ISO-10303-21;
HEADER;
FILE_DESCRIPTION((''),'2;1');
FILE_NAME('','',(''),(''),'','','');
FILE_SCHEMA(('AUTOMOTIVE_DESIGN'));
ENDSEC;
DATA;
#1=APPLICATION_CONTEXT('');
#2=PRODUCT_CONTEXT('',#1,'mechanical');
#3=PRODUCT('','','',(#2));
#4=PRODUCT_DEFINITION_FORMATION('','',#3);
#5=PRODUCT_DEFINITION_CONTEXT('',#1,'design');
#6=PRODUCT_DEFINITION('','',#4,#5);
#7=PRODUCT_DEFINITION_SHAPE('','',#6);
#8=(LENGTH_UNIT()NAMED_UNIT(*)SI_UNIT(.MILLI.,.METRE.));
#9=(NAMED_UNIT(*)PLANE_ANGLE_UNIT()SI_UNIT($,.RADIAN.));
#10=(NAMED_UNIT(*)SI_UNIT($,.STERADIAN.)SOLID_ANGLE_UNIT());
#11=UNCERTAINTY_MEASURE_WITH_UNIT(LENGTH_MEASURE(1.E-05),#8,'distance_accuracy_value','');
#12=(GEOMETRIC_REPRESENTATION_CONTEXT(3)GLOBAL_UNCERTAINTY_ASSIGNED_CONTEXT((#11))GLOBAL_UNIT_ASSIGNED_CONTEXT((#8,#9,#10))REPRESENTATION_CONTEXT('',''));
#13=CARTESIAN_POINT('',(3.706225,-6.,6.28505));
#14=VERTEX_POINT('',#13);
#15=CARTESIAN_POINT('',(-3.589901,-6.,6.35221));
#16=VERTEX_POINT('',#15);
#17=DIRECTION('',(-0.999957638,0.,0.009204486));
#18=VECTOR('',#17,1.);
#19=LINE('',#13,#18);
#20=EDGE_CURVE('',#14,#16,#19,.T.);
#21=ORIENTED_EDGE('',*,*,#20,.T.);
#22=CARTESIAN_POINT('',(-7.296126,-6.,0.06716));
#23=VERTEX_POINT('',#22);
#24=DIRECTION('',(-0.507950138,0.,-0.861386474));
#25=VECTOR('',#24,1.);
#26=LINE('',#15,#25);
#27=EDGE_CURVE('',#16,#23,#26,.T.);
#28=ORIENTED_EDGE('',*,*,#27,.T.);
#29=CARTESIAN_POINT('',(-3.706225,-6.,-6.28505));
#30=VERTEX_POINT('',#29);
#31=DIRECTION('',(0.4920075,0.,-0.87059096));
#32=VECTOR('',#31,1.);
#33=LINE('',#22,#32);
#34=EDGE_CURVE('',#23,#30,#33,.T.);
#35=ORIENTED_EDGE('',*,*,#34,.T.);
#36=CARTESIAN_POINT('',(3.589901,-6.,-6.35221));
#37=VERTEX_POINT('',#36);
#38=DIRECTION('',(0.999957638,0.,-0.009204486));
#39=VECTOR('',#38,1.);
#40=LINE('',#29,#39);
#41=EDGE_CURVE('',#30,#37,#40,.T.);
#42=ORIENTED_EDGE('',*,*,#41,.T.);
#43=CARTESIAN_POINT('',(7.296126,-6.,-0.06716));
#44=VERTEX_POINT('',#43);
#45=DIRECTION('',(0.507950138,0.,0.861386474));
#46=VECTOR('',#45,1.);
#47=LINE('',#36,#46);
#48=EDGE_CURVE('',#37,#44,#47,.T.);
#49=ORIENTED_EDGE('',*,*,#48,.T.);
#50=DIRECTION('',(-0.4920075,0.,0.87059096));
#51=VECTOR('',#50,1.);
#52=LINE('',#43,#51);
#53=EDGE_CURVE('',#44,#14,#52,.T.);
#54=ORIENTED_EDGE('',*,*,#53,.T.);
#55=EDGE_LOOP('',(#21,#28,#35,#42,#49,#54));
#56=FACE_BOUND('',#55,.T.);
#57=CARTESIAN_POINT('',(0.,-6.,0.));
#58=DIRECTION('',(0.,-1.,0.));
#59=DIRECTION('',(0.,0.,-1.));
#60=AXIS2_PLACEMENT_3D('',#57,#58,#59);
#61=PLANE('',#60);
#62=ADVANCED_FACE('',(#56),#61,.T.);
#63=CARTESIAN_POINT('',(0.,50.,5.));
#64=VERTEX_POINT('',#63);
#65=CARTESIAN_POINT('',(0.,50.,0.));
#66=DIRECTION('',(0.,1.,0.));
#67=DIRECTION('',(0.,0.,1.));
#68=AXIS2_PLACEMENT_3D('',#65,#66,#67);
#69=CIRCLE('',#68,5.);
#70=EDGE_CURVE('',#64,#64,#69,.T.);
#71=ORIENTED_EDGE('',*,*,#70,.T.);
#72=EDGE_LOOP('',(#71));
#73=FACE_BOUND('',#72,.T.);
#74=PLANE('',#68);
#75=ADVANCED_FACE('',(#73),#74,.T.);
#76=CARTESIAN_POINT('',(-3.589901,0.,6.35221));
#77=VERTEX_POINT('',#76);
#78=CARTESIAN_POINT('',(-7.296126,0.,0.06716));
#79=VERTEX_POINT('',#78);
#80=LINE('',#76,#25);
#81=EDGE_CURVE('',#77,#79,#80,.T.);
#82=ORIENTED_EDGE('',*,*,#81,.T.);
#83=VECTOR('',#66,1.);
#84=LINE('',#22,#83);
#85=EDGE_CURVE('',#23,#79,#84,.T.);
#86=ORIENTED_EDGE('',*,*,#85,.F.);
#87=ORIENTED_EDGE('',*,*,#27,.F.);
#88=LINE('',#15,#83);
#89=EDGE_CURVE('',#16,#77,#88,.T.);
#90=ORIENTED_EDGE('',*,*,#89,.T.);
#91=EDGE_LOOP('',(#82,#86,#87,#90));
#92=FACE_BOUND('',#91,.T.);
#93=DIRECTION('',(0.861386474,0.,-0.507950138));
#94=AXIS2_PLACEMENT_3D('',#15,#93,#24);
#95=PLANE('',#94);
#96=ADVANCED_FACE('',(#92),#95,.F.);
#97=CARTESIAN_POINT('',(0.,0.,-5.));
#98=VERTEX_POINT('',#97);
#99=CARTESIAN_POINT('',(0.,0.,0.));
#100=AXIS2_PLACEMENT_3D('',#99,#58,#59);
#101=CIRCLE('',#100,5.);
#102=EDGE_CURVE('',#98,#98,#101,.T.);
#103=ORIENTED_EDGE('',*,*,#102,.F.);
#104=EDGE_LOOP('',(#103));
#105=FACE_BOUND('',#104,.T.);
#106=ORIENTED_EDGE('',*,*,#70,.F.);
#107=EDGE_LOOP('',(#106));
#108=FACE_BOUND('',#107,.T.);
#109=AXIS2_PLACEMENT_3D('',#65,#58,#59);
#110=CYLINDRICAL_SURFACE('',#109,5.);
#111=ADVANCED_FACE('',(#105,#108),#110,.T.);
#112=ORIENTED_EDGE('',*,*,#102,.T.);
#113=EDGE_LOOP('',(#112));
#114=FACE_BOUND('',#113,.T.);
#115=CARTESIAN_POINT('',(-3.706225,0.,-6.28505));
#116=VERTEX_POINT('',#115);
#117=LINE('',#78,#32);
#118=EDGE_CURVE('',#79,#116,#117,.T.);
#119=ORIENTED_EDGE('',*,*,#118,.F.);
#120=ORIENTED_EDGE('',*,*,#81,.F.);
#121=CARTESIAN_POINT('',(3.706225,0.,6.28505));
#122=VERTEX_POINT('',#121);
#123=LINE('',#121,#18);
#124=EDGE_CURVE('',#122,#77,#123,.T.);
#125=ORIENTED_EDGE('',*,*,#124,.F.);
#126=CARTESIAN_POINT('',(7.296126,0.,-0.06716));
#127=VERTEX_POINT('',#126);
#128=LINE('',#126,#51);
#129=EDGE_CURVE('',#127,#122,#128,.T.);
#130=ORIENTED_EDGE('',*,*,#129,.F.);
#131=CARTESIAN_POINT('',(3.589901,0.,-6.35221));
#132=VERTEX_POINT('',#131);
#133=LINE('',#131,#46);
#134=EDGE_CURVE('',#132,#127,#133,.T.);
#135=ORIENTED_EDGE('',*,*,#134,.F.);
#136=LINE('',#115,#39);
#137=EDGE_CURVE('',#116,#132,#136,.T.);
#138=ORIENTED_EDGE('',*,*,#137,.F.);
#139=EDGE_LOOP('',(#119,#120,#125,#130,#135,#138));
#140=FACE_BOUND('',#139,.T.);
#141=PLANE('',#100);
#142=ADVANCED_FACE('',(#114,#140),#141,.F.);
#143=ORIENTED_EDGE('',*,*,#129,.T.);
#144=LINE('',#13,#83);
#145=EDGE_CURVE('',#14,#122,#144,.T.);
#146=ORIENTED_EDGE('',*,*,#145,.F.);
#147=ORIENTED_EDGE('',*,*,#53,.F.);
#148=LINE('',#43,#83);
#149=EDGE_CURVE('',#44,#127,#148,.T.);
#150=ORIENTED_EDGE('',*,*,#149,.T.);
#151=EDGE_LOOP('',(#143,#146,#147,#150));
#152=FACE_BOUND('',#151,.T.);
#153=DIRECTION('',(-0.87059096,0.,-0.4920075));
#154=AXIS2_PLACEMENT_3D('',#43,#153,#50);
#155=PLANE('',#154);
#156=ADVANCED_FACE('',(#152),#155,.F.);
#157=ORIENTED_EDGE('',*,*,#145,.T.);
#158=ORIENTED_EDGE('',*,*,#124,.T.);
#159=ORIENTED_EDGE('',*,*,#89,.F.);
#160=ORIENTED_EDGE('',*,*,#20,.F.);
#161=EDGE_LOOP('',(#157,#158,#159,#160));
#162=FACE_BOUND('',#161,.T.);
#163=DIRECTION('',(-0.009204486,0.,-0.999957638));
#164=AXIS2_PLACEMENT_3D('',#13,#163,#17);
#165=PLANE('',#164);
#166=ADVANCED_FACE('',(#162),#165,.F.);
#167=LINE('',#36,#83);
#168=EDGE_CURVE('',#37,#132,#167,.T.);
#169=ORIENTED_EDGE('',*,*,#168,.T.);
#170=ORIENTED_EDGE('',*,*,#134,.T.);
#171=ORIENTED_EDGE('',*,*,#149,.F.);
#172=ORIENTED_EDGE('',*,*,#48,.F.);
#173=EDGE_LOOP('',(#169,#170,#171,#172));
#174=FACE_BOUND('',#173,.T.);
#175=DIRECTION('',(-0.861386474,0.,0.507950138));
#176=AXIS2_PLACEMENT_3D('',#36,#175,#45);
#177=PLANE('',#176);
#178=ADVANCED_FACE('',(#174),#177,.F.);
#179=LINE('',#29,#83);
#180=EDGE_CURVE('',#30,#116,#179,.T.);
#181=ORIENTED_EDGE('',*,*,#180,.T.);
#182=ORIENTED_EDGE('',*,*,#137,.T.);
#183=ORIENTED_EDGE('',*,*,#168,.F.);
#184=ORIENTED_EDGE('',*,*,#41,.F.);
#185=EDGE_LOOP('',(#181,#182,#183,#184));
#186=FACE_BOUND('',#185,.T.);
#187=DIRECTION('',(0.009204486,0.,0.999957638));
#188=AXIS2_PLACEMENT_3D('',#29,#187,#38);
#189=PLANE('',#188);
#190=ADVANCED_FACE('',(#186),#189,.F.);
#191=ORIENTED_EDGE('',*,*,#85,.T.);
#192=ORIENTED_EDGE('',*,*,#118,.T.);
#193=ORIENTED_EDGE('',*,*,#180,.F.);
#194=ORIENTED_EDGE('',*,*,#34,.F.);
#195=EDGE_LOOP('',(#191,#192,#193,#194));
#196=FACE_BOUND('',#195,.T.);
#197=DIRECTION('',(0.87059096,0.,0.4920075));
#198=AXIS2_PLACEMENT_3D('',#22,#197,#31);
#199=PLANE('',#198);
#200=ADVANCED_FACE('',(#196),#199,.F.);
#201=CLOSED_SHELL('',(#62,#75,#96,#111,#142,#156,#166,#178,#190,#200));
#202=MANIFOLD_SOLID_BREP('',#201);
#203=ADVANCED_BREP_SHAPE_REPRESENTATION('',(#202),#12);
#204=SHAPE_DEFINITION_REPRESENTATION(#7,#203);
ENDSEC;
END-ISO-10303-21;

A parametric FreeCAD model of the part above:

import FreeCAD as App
import Part
import Sketcher

V = App.Vector
Q = App.Units.Quantity

doc = App.newDocument("Part")
body = doc.addObject("PartDesign::Body", "Body")

sketch1 = body.newObject("Sketcher::SketchObject", "Sketch")
sketch1.AttachmentSupport = (doc.getObject("XZ_Plane"), [""])
sketch1.MapMode = "FlatFace"
sketch1.addGeometry(Part.Circle(V(0, 0, 0), V(0, 0, 1), 5), False)
sketch1.addConstraint([
    Sketcher.Constraint("Coincident", 0, 3, -1, 1),
    Sketcher.Constraint("Diameter", 0, Q("10 mm")),
])
pad1 = body.newObject("PartDesign::Pad", "Pad")
pad1.Profile = sketch1
pad1.Length = 50
pad1.Reversed = True

sketch2 = body.newObject("Sketcher::SketchObject", "Sketch001")
sketch2.AttachmentSupport = (doc.getObject("XZ_Plane"), [""])
sketch2.MapMode = "FlatFace"
sketch2.addGeometry([
    Part.LineSegment(V(4, 6, 0), V(-4, 6, 0)),
    Part.LineSegment(V(-4, 6, 0), V(-7, 0, 0)),
    Part.LineSegment(V(-7, 0, 0), V(-4, -6, 0)),
    Part.LineSegment(V(-4, -6, 0), V(4, -6, 0)),
    Part.LineSegment(V(4, -6, 0), V(7, 0, 0)),
    Part.LineSegment(V(7, 0, 0), V(4, 6, 0)),
], False)
sketch2.addConstraint([
    Sketcher.Constraint("Coincident", 0, 2, 1, 1),
    Sketcher.Constraint("Coincident", 1, 2, 2, 1),
    Sketcher.Constraint("Coincident", 2, 2, 3, 1),
    Sketcher.Constraint("Coincident", 3, 2, 4, 1),
    Sketcher.Constraint("Coincident", 4, 2, 5, 1),
    Sketcher.Constraint("Coincident", 5, 2, 0, 1),
    Sketcher.Constraint("Symmetric", 0, 2, 3, 2, -1, 1),
    Sketcher.Constraint("Symmetric", 1, 2, 4, 2, -1, 1),
    Sketcher.Constraint("Symmetric", 2, 2, 5, 2, -1, 1),
    Sketcher.Constraint("Equal", 0, 1),
    Sketcher.Constraint("Equal", 1, 2),
    Sketcher.Constraint("DistanceX", 0, 2, -1, 1, Q("3.589901 mm")),
    Sketcher.Constraint("DistanceX", 1, 2, 2, 2, Q("3.589901 mm")),
    Sketcher.Constraint("DistanceY", 2, 2, 5, 2, Q("12.570101 mm")),
    Sketcher.Constraint("DistanceY", -1, 1, 0, 2, Q("6.35221 mm")),
])
pad2 = body.newObject("PartDesign::Pad", "Pad001")
pad2.Profile = sketch2
pad2.Length = 6

doc.recompute()
